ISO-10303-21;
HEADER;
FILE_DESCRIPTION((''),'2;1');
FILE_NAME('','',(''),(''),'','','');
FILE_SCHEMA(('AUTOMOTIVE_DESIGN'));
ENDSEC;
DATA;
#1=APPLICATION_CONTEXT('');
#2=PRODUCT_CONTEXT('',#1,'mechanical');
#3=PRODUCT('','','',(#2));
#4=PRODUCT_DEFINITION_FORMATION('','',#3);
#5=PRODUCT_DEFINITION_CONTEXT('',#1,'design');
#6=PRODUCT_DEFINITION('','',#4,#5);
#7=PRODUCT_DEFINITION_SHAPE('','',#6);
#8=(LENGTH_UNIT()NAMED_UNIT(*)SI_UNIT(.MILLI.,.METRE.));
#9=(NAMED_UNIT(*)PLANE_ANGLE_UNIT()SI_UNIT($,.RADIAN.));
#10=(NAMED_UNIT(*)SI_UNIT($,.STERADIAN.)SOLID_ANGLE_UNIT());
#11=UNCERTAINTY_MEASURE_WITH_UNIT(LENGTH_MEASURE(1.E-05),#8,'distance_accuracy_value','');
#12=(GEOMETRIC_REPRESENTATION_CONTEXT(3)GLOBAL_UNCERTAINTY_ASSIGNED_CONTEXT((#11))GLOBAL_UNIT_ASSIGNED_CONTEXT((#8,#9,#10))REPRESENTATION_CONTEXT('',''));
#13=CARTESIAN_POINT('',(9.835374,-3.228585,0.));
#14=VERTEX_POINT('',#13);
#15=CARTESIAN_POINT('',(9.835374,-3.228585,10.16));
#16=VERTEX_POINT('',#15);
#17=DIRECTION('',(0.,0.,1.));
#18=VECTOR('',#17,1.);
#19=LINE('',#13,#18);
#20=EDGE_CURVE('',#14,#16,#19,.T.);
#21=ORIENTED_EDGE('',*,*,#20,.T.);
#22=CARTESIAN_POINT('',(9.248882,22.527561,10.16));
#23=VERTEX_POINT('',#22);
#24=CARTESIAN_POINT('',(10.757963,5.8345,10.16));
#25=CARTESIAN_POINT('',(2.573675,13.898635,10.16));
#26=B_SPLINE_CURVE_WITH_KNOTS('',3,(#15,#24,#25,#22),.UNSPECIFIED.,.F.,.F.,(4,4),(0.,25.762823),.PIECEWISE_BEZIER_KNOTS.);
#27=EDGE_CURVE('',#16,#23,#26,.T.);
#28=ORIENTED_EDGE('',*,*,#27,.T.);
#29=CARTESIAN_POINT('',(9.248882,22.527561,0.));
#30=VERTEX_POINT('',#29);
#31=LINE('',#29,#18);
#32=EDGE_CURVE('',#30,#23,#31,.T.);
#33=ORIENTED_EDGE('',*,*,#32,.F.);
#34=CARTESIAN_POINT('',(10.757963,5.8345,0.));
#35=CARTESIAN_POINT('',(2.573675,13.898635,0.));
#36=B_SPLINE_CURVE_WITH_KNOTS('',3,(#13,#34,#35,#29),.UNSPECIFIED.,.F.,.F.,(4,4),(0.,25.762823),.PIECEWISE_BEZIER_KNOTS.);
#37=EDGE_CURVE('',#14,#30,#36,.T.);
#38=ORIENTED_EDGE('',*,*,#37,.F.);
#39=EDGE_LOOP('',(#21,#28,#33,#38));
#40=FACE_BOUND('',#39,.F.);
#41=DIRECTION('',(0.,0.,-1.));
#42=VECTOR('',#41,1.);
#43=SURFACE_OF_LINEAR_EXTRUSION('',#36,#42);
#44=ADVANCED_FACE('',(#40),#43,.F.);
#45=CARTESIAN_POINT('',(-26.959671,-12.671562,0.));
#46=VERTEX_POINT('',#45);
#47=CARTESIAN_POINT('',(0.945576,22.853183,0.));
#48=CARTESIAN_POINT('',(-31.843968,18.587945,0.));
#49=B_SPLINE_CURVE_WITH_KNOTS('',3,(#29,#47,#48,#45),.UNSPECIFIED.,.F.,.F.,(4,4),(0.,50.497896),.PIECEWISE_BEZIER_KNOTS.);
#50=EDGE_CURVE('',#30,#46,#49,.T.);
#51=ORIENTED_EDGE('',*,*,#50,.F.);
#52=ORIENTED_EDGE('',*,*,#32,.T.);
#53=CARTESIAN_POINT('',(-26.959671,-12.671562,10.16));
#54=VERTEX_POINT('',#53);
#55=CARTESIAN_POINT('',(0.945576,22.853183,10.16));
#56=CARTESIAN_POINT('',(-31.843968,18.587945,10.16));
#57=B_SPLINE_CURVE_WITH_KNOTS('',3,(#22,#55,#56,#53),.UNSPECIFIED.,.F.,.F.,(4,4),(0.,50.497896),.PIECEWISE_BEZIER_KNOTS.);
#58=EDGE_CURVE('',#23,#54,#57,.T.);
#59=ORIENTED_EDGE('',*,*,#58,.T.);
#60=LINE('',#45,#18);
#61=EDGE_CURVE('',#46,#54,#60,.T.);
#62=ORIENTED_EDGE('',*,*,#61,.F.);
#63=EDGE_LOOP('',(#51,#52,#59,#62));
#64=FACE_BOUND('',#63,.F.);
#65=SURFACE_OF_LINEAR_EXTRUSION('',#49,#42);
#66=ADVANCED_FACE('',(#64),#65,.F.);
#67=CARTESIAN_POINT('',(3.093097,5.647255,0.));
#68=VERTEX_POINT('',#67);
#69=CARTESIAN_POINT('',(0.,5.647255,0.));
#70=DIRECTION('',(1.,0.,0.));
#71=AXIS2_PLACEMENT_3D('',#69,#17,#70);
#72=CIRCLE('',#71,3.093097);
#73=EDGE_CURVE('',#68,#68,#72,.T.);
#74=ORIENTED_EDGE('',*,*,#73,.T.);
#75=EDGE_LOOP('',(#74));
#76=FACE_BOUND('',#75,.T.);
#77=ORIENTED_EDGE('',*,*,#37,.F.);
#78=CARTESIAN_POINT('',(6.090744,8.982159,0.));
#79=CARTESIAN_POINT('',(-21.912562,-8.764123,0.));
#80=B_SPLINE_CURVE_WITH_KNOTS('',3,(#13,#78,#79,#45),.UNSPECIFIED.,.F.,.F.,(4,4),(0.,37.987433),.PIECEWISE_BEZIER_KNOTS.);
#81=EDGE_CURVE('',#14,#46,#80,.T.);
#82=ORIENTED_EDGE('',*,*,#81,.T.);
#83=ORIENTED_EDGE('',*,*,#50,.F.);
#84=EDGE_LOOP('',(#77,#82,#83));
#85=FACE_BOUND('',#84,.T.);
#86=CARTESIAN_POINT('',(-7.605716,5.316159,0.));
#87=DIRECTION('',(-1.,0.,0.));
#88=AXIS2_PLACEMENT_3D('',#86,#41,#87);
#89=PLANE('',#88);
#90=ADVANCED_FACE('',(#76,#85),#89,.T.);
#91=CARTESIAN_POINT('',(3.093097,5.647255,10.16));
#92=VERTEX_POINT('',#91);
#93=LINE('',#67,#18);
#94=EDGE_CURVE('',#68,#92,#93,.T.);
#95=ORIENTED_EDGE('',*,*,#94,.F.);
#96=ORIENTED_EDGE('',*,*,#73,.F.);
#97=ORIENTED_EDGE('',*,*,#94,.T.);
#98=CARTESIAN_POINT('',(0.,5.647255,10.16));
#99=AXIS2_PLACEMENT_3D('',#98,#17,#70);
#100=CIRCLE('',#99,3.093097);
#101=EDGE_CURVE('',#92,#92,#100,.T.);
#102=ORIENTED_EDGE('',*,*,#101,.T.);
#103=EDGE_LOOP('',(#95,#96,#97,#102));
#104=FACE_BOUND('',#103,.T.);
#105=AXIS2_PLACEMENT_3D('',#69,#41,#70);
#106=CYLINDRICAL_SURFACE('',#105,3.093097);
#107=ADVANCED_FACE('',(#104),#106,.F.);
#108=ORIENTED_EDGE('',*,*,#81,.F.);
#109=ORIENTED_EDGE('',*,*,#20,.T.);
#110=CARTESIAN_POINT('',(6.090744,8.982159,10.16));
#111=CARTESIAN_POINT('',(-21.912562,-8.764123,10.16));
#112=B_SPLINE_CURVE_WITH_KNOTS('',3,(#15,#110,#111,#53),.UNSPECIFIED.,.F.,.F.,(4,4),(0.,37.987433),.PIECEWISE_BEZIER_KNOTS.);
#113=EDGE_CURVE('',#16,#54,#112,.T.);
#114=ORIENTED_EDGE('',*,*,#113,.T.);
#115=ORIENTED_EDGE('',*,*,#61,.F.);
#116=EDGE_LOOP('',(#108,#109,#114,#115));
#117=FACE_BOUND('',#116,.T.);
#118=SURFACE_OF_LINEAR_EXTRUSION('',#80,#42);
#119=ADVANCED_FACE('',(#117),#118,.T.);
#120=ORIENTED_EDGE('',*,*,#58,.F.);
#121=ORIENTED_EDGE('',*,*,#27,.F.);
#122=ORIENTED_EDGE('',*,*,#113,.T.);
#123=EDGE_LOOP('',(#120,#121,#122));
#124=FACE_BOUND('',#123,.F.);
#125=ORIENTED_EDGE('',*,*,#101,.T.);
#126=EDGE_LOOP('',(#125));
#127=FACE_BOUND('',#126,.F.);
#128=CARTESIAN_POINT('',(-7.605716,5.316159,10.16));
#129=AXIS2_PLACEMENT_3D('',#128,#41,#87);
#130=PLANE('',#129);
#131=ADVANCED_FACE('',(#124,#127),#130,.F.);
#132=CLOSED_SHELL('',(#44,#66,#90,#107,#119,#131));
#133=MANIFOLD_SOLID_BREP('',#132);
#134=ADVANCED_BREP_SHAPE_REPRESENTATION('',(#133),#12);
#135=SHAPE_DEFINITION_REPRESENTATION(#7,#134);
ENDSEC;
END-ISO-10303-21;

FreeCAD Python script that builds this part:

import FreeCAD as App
import Part
import Sketcher
Q = App.Units.Quantity

doc = App.newDocument("Part")
body = doc.addObject("PartDesign::Body", "Body")

# Sketch on XY plane
sketch1 = body.newObject("Sketcher::SketchObject", "Sketch")
sketch1.AttachmentSupport = (doc.getObject("XY_Plane"), [""])
sketch1.MapMode = "FlatFace"
sketch1.addGeometry([
    Part.BSplineCurve([App.Vector(9.835374, -3.228585, 0), App.Vector(6.090744, 8.982159, 0), App.Vector(-21.912562, -8.764123, 0), App.Vector(-26.959671, -12.671562, 0)], [4, 4], [0, 37.987433], False, 3, [1, 1, 1, 1], False),
    Part.BSplineCurve([App.Vector(9.835374, -3.228585, 0), App.Vector(10.757963, 5.8345, 0), App.Vector(2.573675, 13.898635, 0), App.Vector(9.248882, 22.527561, 0)], [4, 4], [0, 25.762823], False, 3, [1, 1, 1, 1], False),
    Part.BSplineCurve([App.Vector(9.248882, 22.527561, 0), App.Vector(0.945576, 22.853183, 0), App.Vector(-31.843968, 18.587945, 0), App.Vector(-26.959671, -12.671562, 0)], [4, 4], [0, 50.497896], False, 3, [1, 1, 1, 1], False),
    Part.Circle(App.Vector(0, 5.647255, 0), App.Vector(0, 0, 1), 3.093097),
], False)
sketch1.addConstraint([
    Sketcher.Constraint("Block", 0),
    Sketcher.Constraint("Block", 1),
    Sketcher.Constraint("Block", 2),
    Sketcher.Constraint("PointOnObject", 3, 3, -2),
    Sketcher.Constraint("Diameter", 3, Q("6.186194 mm")),
    Sketcher.Constraint("DistanceY", -1, 1, 3, 3, Q("5.647255 mm")),
])
pad1 = body.newObject("PartDesign::Pad", "Pad")
pad1.Profile = sketch1
pad1.Length = Q("0.4 in")

doc.recompute()
